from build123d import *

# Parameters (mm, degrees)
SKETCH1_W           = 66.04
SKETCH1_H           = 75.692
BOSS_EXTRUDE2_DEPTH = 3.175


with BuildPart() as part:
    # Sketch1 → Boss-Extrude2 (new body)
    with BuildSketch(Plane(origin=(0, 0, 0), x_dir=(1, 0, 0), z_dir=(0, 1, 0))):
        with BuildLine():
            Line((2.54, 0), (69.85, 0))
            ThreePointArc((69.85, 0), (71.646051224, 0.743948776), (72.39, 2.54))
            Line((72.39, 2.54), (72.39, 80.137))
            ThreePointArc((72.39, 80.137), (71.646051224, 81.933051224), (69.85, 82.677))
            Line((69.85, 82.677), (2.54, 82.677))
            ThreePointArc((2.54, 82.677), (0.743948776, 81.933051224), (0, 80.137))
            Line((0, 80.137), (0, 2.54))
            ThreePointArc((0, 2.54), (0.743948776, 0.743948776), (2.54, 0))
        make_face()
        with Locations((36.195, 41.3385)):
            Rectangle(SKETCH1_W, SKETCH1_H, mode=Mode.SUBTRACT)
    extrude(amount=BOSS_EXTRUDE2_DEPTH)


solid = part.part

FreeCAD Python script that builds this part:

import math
import FreeCAD as App
import Part
import Sketcher
Q = App.Units.Quantity

doc = App.newDocument("Part")
body = doc.addObject("PartDesign::Body", "Body")

sketch1 = doc.addObject("Sketcher::SketchObject", "Sketch")
body.addObject(sketch1)
sketch1.AttachmentSupport = (doc.XZ_Plane, [""])
sketch1.MapMode = "FlatFace"
sketch1.addGeometry(Part.LineSegment(App.Vector(2.5, 0, 0), App.Vector(69.8, 0, 0)), False)
sketch1.addGeometry(Part.ArcOfCircle(Part.Circle(App.Vector(69.8, -2.5, 0), App.Vector(0, 0, 1), 2.5), math.radians(0), math.radians(90)), False)
sketch1.addGeometry(Part.LineSegment(App.Vector(72.4, -2.5, 0), App.Vector(72.4, -80.1, 0)), False)
sketch1.addGeometry(Part.ArcOfCircle(Part.Circle(App.Vector(69.8, -80.1, 0), App.Vector(0, 0, 1), 2.5), math.radians(-90), math.radians(0)), False)
sketch1.addGeometry(Part.LineSegment(App.Vector(69.8, -82.7, 0), App.Vector(2.5, -82.7, 0)), False)
sketch1.addGeometry(Part.ArcOfCircle(Part.Circle(App.Vector(2.5, -80.1, 0), App.Vector(0, 0, 1), 2.5), math.radians(-180), math.radians(-90)), False)
sketch1.addGeometry(Part.LineSegment(App.Vector(0, -80.1, 0), App.Vector(0, -2.5, 0)), False)
sketch1.addGeometry(Part.ArcOfCircle(Part.Circle(App.Vector(2.5, -2.5, 0), App.Vector(0, 0, 1), 2.5), math.radians(90), math.radians(180)), False)
sketch1.addGeometry(Part.LineSegment(App.Vector(69.2, -3.5, 0), App.Vector(3.2, -3.5, 0)), False)
sketch1.addGeometry(Part.LineSegment(App.Vector(3.2, -3.5, 0), App.Vector(3.2, -79.2, 0)), False)
sketch1.addGeometry(Part.LineSegment(App.Vector(3.2, -79.2, 0), App.Vector(69.2, -79.2, 0)), False)
sketch1.addGeometry(Part.LineSegment(App.Vector(69.2, -79.2, 0), App.Vector(69.2, -3.5, 0)), False)
sketch1.addConstraint(Sketcher.Constraint("Tangent", 0, 2, 1, 2))
sketch1.addConstraint(Sketcher.Constraint("Tangent", 1, 1, 2, 1))
sketch1.addConstraint(Sketcher.Constraint("Tangent", 2, 2, 3, 2))
sketch1.addConstraint(Sketcher.Constraint("Tangent", 3, 1, 4, 1))
sketch1.addConstraint(Sketcher.Constraint("Tangent", 4, 2, 5, 2))
sketch1.addConstraint(Sketcher.Constraint("Tangent", 5, 1, 6, 1))
sketch1.addConstraint(Sketcher.Constraint("Tangent", 6, 2, 7, 2))
sketch1.addConstraint(Sketcher.Constraint("Tangent", 7, 1, 0, 1))
sketch1.addConstraint(Sketcher.Constraint("Coincident", 8, 2, 9, 1))
sketch1.addConstraint(Sketcher.Constraint("Coincident", 9, 2, 10, 1))
sketch1.addConstraint(Sketcher.Constraint("Coincident", 10, 2, 11, 1))
sketch1.addConstraint(Sketcher.Constraint("Coincident", 11, 2, 8, 1))
sketch1.addConstraint(Sketcher.Constraint("Horizontal", 0))
sketch1.addConstraint(Sketcher.Constraint("Vertical", 2))
sketch1.addConstraint(Sketcher.Constraint("Horizontal", 4))
sketch1.addConstraint(Sketcher.Constraint("Vertical", 6))
sketch1.addConstraint(Sketcher.Constraint("Horizontal", 8))
sketch1.addConstraint(Sketcher.Constraint("Vertical", 9))
sketch1.addConstraint(Sketcher.Constraint("Horizontal", 10))
sketch1.addConstraint(Sketcher.Constraint("Vertical", 11))
sketch1.addConstraint(Sketcher.Constraint("Equal", 1, 3))
sketch1.addConstraint(Sketcher.Constraint("Equal", 3, 5))
sketch1.addConstraint(Sketcher.Constraint("Equal", 5, 7))
sketch1.addConstraint(Sketcher.Constraint("PointOnObject", 0, 2, -1))
sketch1.addConstraint(Sketcher.Constraint("PointOnObject", 5, 1, -2))
sketch1.addConstraint(Sketcher.Constraint("Radius", 1, Q("0.1 in")))
sketch1.addConstraint(Sketcher.Constraint("DistanceX", 8, 2, 8, 1, Q("2.6 in")))
sketch1.addConstraint(Sketcher.Constraint("DistanceX", 0, 1, 0, 2, Q("2.65 in")))
sketch1.addConstraint(Sketcher.Constraint("DistanceY", 9, 2, 9, 1, Q("2.98 in")))
sketch1.addConstraint(Sketcher.Constraint("DistanceY", 2, 2, 2, 1, Q("3.055 in")))
sketch1.addConstraint(Sketcher.Constraint("DistanceX", -1, 1, 8, 2, Q("0.125 in")))
sketch1.addConstraint(Sketcher.Constraint("DistanceY", 8, 2, -1, 1, Q("0.1375 in")))
pad1 = doc.addObject("PartDesign::Pad", "Pad")
body.addObject(pad1)
pad1.Profile = sketch1
pad1.Length = Q("0.125 in")
pad1.Reversed = True

doc.recompute()
